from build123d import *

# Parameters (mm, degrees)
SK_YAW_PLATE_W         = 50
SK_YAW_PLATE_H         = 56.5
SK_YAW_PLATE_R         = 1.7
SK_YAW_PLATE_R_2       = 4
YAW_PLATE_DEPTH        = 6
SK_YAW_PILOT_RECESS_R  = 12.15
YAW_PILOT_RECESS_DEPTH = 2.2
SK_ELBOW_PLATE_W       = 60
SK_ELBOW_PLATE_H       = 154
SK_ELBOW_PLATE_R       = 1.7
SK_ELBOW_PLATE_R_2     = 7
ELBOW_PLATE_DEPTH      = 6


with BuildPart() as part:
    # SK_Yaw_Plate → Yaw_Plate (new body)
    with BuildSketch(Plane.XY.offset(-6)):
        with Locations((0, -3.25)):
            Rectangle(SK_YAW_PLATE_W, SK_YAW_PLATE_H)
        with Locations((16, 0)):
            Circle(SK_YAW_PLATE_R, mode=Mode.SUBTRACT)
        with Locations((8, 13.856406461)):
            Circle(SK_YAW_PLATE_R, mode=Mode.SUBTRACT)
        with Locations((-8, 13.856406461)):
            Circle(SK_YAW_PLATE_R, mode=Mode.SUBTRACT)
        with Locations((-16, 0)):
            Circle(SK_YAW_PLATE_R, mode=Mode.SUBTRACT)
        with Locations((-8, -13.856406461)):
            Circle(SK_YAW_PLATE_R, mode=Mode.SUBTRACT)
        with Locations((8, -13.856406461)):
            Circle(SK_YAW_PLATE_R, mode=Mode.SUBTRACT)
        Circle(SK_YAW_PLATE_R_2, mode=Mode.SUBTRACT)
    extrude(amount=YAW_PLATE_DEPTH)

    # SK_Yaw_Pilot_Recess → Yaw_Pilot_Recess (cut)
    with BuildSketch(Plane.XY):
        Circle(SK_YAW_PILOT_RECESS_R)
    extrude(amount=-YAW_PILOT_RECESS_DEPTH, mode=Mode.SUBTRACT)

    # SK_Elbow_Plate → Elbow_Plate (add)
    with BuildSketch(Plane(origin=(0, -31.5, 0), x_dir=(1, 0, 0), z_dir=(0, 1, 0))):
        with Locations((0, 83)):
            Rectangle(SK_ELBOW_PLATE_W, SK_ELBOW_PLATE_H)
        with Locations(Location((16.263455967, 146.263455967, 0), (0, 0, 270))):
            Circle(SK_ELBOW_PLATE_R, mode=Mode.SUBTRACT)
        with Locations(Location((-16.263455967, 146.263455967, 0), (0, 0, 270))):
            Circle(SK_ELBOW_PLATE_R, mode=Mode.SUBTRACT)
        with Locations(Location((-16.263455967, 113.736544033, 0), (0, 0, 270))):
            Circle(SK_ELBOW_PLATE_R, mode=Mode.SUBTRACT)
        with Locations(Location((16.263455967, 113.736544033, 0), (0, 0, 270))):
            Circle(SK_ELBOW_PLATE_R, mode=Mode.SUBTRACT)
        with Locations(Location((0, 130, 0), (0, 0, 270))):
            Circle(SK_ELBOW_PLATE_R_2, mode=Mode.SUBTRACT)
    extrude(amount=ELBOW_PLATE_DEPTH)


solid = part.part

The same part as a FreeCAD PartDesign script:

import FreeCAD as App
import Part
import Sketcher
from FreeCAD import Vector
Q = App.Units.Quantity


def add_polygon(sketch, points):
    """Adds a closed chain of lines whose ends are joined by coincident constraints."""
    first, n = sketch.GeometryCount, len(points)
    for a, b in zip(points, points[1:] + points[:1]):
        sketch.addGeometry(Part.LineSegment(App.Vector(*a, 0), App.Vector(*b, 0)), False)
    for i in range(n):
        sketch.addConstraint(Sketcher.Constraint("Coincident", first + i, 2, first + (i + 1) % n, 1))

doc = App.newDocument("Part")
body = doc.addObject("PartDesign::Body", "Body")

# Sketch on XY plane
sketch1 = body.newObject("Sketcher::SketchObject", "Sketch")
sketch1.AttachmentSupport = (doc.getObject("XY_Plane"), [""])
sketch1.MapMode = "FlatFace"
sketch1.AttachmentOffset = App.Placement(Vector(0, 0, -6), App.Rotation())
add_polygon(sketch1, [(-25, 25), (-25, -31.5), (25, -31.5), (25, 25)])  # lines 0-3
sketch1.addGeometry(Part.Circle(Vector(-8, -13.856406, 0), Vector(0, 0, 1), 1.7), False)  # 4
sketch1.addGeometry(Part.Circle(Vector(8, -13.856406, 0), Vector(0, 0, 1), 1.7), False)  # 5
sketch1.addGeometry(Part.Circle(Vector(-16, 0, 0), Vector(0, 0, 1), 1.7), False)  # 6
sketch1.addGeometry(Part.Circle(Vector(-8, 13.856406, 0), Vector(0, 0, 1), 1.7), False)  # 7
sketch1.addGeometry(Part.Circle(Vector(0, 0, 0), Vector(0, 0, 1), 4), False)  # 8
sketch1.addGeometry(Part.Circle(Vector(16, 0, 0), Vector(0, 0, 1), 1.7), False)  # 9
sketch1.addGeometry(Part.Circle(Vector(8, 13.856406, 0), Vector(0, 0, 1), 1.7), False)  # 10
sketch1.addConstraint([
    Sketcher.Constraint("Vertical", 0),
    Sketcher.Constraint("Horizontal", 1),
    Sketcher.Constraint("Vertical", 2),
    Sketcher.Constraint("Horizontal", 3),
    Sketcher.Constraint("Coincident", 8, 3, -1, 1),
    Sketcher.Constraint("Equal", 4, 5),
    Sketcher.Constraint("Equal", 5, 6),
    Sketcher.Constraint("Equal", 6, 7),
    Sketcher.Constraint("Equal", 7, 9),
    Sketcher.Constraint("Equal", 9, 10),
    Sketcher.Constraint("Symmetric", 5, 3, 7, 3, -1, 1),
    Sketcher.Constraint("Symmetric", 6, 3, 9, 3, -1, 1),
    Sketcher.Constraint("Symmetric", 4, 3, 10, 3, -1, 1),
    Sketcher.Constraint("Symmetric", 4, 3, 5, 3, -2),
    Sketcher.Constraint("PointOnObject", 6, 3, -1),
    Sketcher.Constraint("Diameter", 8, Q("8 mm")),
    Sketcher.Constraint("Diameter", 4, Q("3.4 mm")),
    Sketcher.Constraint("DistanceX", 1, 1, 1, 2, Q("50 mm")),
    Sketcher.Constraint("DistanceY", 0, 2, 0, 1, Q("56.5 mm")),
    Sketcher.Constraint("DistanceX", 4, 3, -1, 1, Q("8 mm")),
    Sketcher.Constraint("DistanceX", 6, 3, -1, 1, Q("16 mm")),
    Sketcher.Constraint("DistanceX", 0, 2, -1, 1, Q("25 mm")),
    Sketcher.Constraint("DistanceY", -1, 1, 2, 2, Q("25 mm")),
    Sketcher.Constraint("DistanceY", 4, 3, -1, 1, Q("13.856406 mm")),
])
pad1 = body.newObject("PartDesign::Pad", "Pad")
pad1.Profile = sketch1
pad1.Length = 6

# Sketch on XY plane
sketch2 = body.newObject("Sketcher::SketchObject", "Sketch001")
sketch2.AttachmentSupport = (doc.getObject("XY_Plane"), [""])
sketch2.MapMode = "FlatFace"
sketch2.addGeometry(Part.Circle(Vector(0, 0, 0), Vector(0, 0, 1), 12.15), False)
sketch2.addConstraint([
    Sketcher.Constraint("Coincident", 0, 3, -1, 1),
    Sketcher.Constraint("Diameter", 0, Q("24.3 mm")),
])
pocket1 = body.newObject("PartDesign::Pocket", "Pocket")
pocket1.Profile = sketch2
pocket1.Length = 2.2

# Sketch on XZ plane
sketch3 = body.newObject("Sketcher::SketchObject", "Sketch002")
sketch3.AttachmentSupport = (doc.getObject("XZ_Plane"), [""])
sketch3.MapMode = "FlatFace"
sketch3.AttachmentOffset = App.Placement(Vector(0, 0, 31.5), App.Rotation())
add_polygon(sketch3, [(-30, -160), (-30, -6), (30, -6), (30, -160)])  # lines 0-3
sketch3.addGeometry(Part.Circle(Vector(-16.263456, -113.736544, 0), Vector(0, 0, 1), 1.7), False)  # 4
sketch3.addGeometry(Part.Circle(Vector(16.263456, -113.736544, 0), Vector(0, 0, 1), 1.7), False)  # 5
sketch3.addGeometry(Part.Circle(Vector(0, -130, 0), Vector(0, 0, 1), 7), False)  # 6
sketch3.addGeometry(Part.Circle(Vector(-16.263456, -146.263456, 0), Vector(0, 0, 1), 1.7), False)  # 7
sketch3.addGeometry(Part.Circle(Vector(16.263456, -146.263456, 0), Vector(0, 0, 1), 1.7), False)  # 8
sketch3.addConstraint([
    Sketcher.Constraint("Vertical", 0),
    Sketcher.Constraint("Horizontal", 1),
    Sketcher.Constraint("Vertical", 2),
    Sketcher.Constraint("Horizontal", 3),
    Sketcher.Constraint("Equal", 4, 5),
    Sketcher.Constraint("Equal", 5, 7),
    Sketcher.Constraint("Equal", 7, 8),
    Sketcher.Constraint("Symmetric", 4, 3, 5, 3, -2),
    Sketcher.Constraint("Symmetric", 7, 3, 8, 3, -2),
    Sketcher.Constraint("PointOnObject", 6, 3, -2),
    Sketcher.Constraint("Vertical", 4, 3, 7, 3),
    Sketcher.Constraint("Diameter", 6, Q("14 mm")),
    Sketcher.Constraint("Diameter", 4, Q("3.4 mm")),
    Sketcher.Constraint("DistanceX", 1, 1, 1, 2, Q("60 mm")),
    Sketcher.Constraint("DistanceY", 0, 1, 0, 2, Q("154 mm")),
    Sketcher.Constraint("DistanceY", 6, 3, -1, 1, Q("130 mm")),
    Sketcher.Constraint("DistanceX", 0, 2, -1, 1, Q("30 mm")),
    Sketcher.Constraint("DistanceY", 0, 2, -1, 1, Q("6 mm")),
    Sketcher.Constraint("DistanceX", 4, 3, 5, 3, Q("32.526912 mm")),
    Sketcher.Constraint("DistanceY", 7, 3, 4, 3, Q("32.526912 mm")),
    Sketcher.Constraint("DistanceY", 4, 3, -1, 1, Q("113.736544 mm")),
])
pad2 = body.newObject("PartDesign::Pad", "Pad001")
pad2.Profile = sketch3
pad2.Length = 6
pad2.Reversed = True

doc.recompute()
